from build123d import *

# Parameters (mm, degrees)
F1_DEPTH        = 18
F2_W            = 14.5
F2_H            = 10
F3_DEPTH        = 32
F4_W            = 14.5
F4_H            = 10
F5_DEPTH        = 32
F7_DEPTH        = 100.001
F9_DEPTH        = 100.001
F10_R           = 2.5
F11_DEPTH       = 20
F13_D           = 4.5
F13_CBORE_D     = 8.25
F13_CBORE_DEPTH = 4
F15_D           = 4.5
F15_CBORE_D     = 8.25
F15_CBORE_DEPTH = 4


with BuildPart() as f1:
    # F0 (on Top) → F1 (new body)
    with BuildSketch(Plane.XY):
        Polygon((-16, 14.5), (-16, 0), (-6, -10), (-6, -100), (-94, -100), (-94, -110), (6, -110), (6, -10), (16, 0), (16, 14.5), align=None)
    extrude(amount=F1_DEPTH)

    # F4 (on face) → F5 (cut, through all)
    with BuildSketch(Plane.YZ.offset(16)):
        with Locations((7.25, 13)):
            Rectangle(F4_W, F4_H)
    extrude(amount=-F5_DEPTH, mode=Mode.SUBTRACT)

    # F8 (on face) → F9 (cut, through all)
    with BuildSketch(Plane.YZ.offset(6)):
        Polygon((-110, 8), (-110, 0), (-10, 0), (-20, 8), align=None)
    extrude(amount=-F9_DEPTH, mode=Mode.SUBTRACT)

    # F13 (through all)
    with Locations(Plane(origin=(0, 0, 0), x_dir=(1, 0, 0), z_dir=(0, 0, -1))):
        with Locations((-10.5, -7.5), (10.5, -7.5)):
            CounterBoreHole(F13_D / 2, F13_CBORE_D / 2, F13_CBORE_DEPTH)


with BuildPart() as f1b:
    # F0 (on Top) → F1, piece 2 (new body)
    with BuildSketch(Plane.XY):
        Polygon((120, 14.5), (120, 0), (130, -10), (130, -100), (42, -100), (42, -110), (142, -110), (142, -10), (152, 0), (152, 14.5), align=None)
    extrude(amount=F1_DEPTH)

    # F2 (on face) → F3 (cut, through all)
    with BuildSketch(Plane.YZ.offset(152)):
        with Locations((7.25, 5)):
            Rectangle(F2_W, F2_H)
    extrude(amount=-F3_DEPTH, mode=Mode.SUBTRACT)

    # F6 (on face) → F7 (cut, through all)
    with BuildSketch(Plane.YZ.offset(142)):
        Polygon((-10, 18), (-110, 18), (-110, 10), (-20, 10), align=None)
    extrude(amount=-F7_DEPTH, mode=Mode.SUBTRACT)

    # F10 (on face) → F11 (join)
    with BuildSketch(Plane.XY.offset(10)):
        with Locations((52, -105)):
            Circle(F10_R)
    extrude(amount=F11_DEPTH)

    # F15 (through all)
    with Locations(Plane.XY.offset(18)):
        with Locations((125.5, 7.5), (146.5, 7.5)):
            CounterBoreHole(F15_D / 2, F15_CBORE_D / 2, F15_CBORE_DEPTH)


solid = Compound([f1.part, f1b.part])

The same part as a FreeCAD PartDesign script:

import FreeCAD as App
import Part
import Sketcher
from FreeCAD import Vector
Q = App.Units.Quantity

doc = App.newDocument("Part")
body = doc.addObject("PartDesign::Body", "Body")

sketch1 = doc.addObject("Sketcher::SketchObject", "Sketch")
body.addObject(sketch1)
sketch1.AttachmentSupport = (doc.XY_Plane, [""])
sketch1.MapMode = "FlatFace"
sketch1.addGeometry([
    Part.LineSegment(Vector(-16, 14, 0), Vector(-16, 0, 0)),
    Part.LineSegment(Vector(-16, 0, 0), Vector(-6, -10, 0)),
    Part.LineSegment(Vector(-6, -10, 0), Vector(-6, -100, 0)),
    Part.LineSegment(Vector(-6, -100, 0), Vector(-94, -100, 0)),
    Part.LineSegment(Vector(-94, -100, 0), Vector(-94, -110, 0)),
    Part.LineSegment(Vector(-94, -110, 0), Vector(6, -110, 0)),
    Part.LineSegment(Vector(6, -110, 0), Vector(6, -10, 0)),
    Part.LineSegment(Vector(6, -10, 0), Vector(16, 0, 0)),
    Part.LineSegment(Vector(16, 0, 0), Vector(16, 14, 0)),
    Part.LineSegment(Vector(16, 14, 0), Vector(-16, 14, 0)),
], False)
sketch1.addConstraint([
    Sketcher.Constraint("Coincident", 0, 2, 1, 1),
    Sketcher.Constraint("Coincident", 1, 2, 2, 1),
    Sketcher.Constraint("Coincident", 2, 2, 3, 1),
    Sketcher.Constraint("Coincident", 3, 2, 4, 1),
    Sketcher.Constraint("Coincident", 4, 2, 5, 1),
    Sketcher.Constraint("Coincident", 5, 2, 6, 1),
    Sketcher.Constraint("Coincident", 6, 2, 7, 1),
    Sketcher.Constraint("Coincident", 7, 2, 8, 1),
    Sketcher.Constraint("Coincident", 8, 2, 9, 1),
    Sketcher.Constraint("Coincident", 9, 2, 0, 1),
    Sketcher.Constraint("Vertical", 0),
    Sketcher.Constraint("Vertical", 2),
    Sketcher.Constraint("Horizontal", 3),
    Sketcher.Constraint("Vertical", 4),
    Sketcher.Constraint("Horizontal", 5),
    Sketcher.Constraint("Vertical", 6),
    Sketcher.Constraint("Vertical", 8),
    Sketcher.Constraint("Horizontal", 9),
    Sketcher.Constraint("Symmetric", 0, 2, 7, 2, -1, 1),
    Sketcher.Constraint("Symmetric", 1, 2, 6, 2, -2),
    Sketcher.Constraint("PointOnObject", 0, 2, -1),
    Sketcher.Constraint("Perpendicular", 1, 7),
    Sketcher.Constraint("Equal", 5, 6),
    Sketcher.Constraint("DistanceX", 3, 2, 3, 1, Q("88 mm")),
    Sketcher.Constraint("DistanceX", 5, 1, 5, 2, Q("100 mm")),
    Sketcher.Constraint("DistanceX", 9, 2, 9, 1, Q("32 mm")),
    Sketcher.Constraint("DistanceY", 2, 2, 2, 1, Q("90 mm")),
    Sketcher.Constraint("DistanceY", 0, 2, 0, 1, Q("14.5 mm")),
])
pad1 = doc.addObject("PartDesign::Pad", "Pad")
body.addObject(pad1)
pad1.Profile = sketch1
pad1.Length = 18

sketch2 = doc.addObject("Sketcher::SketchObject", "Sketch001")
body.addObject(sketch2)
sketch2.AttachmentSupport = (doc.YZ_Plane, [""])
sketch2.MapMode = "FlatFace"
sketch2.AttachmentOffset = App.Placement(Vector(0, 0, 16), App.Rotation())
sketch2.addGeometry([
    Part.LineSegment(Vector(0, 18, 0), Vector(0, 8, 0)),
    Part.LineSegment(Vector(0, 8, 0), Vector(14, 8, 0)),
    Part.LineSegment(Vector(14, 8, 0), Vector(14, 18, 0)),
    Part.LineSegment(Vector(14, 18, 0), Vector(0, 18, 0)),
], False)
sketch2.addConstraint([
    Sketcher.Constraint("Coincident", 0, 2, 1, 1),
    Sketcher.Constraint("Coincident", 1, 2, 2, 1),
    Sketcher.Constraint("Coincident", 2, 2, 3, 1),
    Sketcher.Constraint("Coincident", 3, 2, 0, 1),
    Sketcher.Constraint("Vertical", 0),
    Sketcher.Constraint("Horizontal", 1),
    Sketcher.Constraint("Vertical", 2),
    Sketcher.Constraint("Horizontal", 3),
    Sketcher.Constraint("PointOnObject", 0, 2, -2),
    Sketcher.Constraint("DistanceY", 0, 2, 0, 1, Q("10 mm")),
    Sketcher.Constraint("DistanceX", 1, 1, 1, 2, Q("14.5 mm")),
    Sketcher.Constraint("DistanceY", -1, 1, 0, 2, Q("8 mm")),
])
pocket1 = doc.addObject("PartDesign::Pocket", "Pocket")
body.addObject(pocket1)
pocket1.Profile = sketch2
pocket1.Type = "ThroughAll"

sketch3 = doc.addObject("Sketcher::SketchObject", "Sketch002")
body.addObject(sketch3)
sketch3.AttachmentSupport = (doc.YZ_Plane, [""])
sketch3.MapMode = "FlatFace"
sketch3.AttachmentOffset = App.Placement(Vector(0, 0, 6), App.Rotation())
sketch3.addGeometry([
    Part.LineSegment(Vector(-110, 8, 0), Vector(-110, 0, 0)),
    Part.LineSegment(Vector(-110, 0, 0), Vector(-10, 0, 0)),
    Part.LineSegment(Vector(-10, 0, 0), Vector(-20, 8, 0)),
    Part.LineSegment(Vector(-20, 8, 0), Vector(-110, 8, 0)),
], False)
sketch3.addConstraint([
    Sketcher.Constraint("Coincident", 0, 2, 1, 1),
    Sketcher.Constraint("Coincident", 1, 2, 2, 1),
    Sketcher.Constraint("Coincident", 2, 2, 3, 1),
    Sketcher.Constraint("Coincident", 3, 2, 0, 1),
    Sketcher.Constraint("Vertical", 0),
    Sketcher.Constraint("Horizontal", 1),
    Sketcher.Constraint("Horizontal", 3),
    Sketcher.Constraint("PointOnObject", 0, 2, -1),
    Sketcher.Constraint("DistanceX", 1, 1, 1, 2, Q("100 mm")),
    Sketcher.Constraint("DistanceX", 3, 2, 3, 1, Q("90 mm")),
    Sketcher.Constraint("DistanceY", 0, 2, 0, 1, Q("8 mm")),
    Sketcher.Constraint("DistanceX", 0, 2, -1, 1, Q("110 mm")),
])
pocket2 = doc.addObject("PartDesign::Pocket", "Pocket001")
body.addObject(pocket2)
pocket2.Profile = sketch3
pocket2.Type = "ThroughAll"

sketch4 = doc.addObject("Sketcher::SketchObject", "Sketch003")
body.addObject(sketch4)
sketch4.AttachmentSupport = (doc.XY_Plane, [""])
sketch4.MapMode = "FlatFace"
sketch4.addGeometry([
    Part.Circle(Vector(-10.5, 7.5, 0), Vector(0, 0, 1), 2.2),
    Part.Circle(Vector(10.5, 7.5, 0), Vector(0, 0, 1), 2.2),
], False)
sketch4.addConstraint([
    Sketcher.Constraint("Equal", 0, 1),
    Sketcher.Constraint("Symmetric", 0, 3, 1, 3, -2),
    Sketcher.Constraint("Diameter", 0, Q("4.5 mm")),
    Sketcher.Constraint("DistanceX", 0, 3, 1, 3, Q("21 mm")),
    Sketcher.Constraint("DistanceY", -1, 1, 0, 3, Q("7.5 mm")),
])
doc.recompute()
hole = doc.addObject("PartDesign::Hole", "Hole")
body.addObject(hole)
hole.Profile = sketch4
hole.ThreadType = "None"
hole.Diameter = 4.5
hole.DepthType = "ThroughAll"
hole.HoleCutType = "Counterbore"
hole.HoleCutDiameter = 8.25
hole.HoleCutDepth = 4
hole.Reversed = True
body2 = doc.addObject("PartDesign::Body", "Body001")

sketch5 = doc.addObject("Sketcher::SketchObject", "Sketch004")
body2.addObject(sketch5)
sketch5.AttachmentSupport = (doc.getObject("XY_Plane001"), [""])
sketch5.MapMode = "FlatFace"
sketch5.addGeometry([
    Part.LineSegment(Vector(120, 14, 0), Vector(120, 0, 0)),
    Part.LineSegment(Vector(120, 0, 0), Vector(130, -10, 0)),
    Part.LineSegment(Vector(130, -10, 0), Vector(130, -100, 0)),
    Part.LineSegment(Vector(130, -100, 0), Vector(42, -100, 0)),
    Part.LineSegment(Vector(42, -100, 0), Vector(42, -110, 0)),
    Part.LineSegment(Vector(42, -110, 0), Vector(142, -110, 0)),
    Part.LineSegment(Vector(142, -110, 0), Vector(142, -10, 0)),
    Part.LineSegment(Vector(142, -10, 0), Vector(152, 0, 0)),
    Part.LineSegment(Vector(152, 0, 0), Vector(152, 14, 0)),
    Part.LineSegment(Vector(152, 14, 0), Vector(120, 14, 0)),
], False)
sketch5.addConstraint([
    Sketcher.Constraint("Coincident", 0, 2, 1, 1),
    Sketcher.Constraint("Coincident", 1, 2, 2, 1),
    Sketcher.Constraint("Coincident", 2, 2, 3, 1),
    Sketcher.Constraint("Coincident", 3, 2, 4, 1),
    Sketcher.Constraint("Coincident", 4, 2, 5, 1),
    Sketcher.Constraint("Coincident", 5, 2, 6, 1),
    Sketcher.Constraint("Coincident", 6, 2, 7, 1),
    Sketcher.Constraint("Coincident", 7, 2, 8, 1),
    Sketcher.Constraint("Coincident", 8, 2, 9, 1),
    Sketcher.Constraint("Coincident", 9, 2, 0, 1),
    Sketcher.Constraint("Vertical", 0),
    Sketcher.Constraint("Vertical", 2),
    Sketcher.Constraint("Horizontal", 3),
    Sketcher.Constraint("Vertical", 4),
    Sketcher.Constraint("Horizontal", 5),
    Sketcher.Constraint("Vertical", 6),
    Sketcher.Constraint("Vertical", 8),
    Sketcher.Constraint("Horizontal", 9),
    Sketcher.Constraint("PointOnObject", 0, 2, -1),
    Sketcher.Constraint("PointOnObject", 7, 2, -1),
    Sketcher.Constraint("Perpendicular", 1, 7),
    Sketcher.Constraint("Horizontal", 1, 2, 6, 2),
    Sketcher.Constraint("Equal", 5, 6),
    Sketcher.Constraint("Equal", 1, 7),
    Sketcher.Constraint("DistanceX", 3, 2, 3, 1, Q("88 mm")),
    Sketcher.Constraint("DistanceX", 5, 1, 5, 2, Q("100 mm")),
    Sketcher.Constraint("DistanceX", 9, 2, 9, 1, Q("32 mm")),
    Sketcher.Constraint("DistanceY", 2, 2, 2, 1, Q("90 mm")),
    Sketcher.Constraint("DistanceY", 0, 2, 0, 1, Q("14.5 mm")),
    Sketcher.Constraint("DistanceX", -1, 1, 0, 2, Q("120 mm")),
])
pad2 = doc.addObject("PartDesign::Pad", "Pad001")
body2.addObject(pad2)
pad2.Profile = sketch5
pad2.Length = 18

sketch6 = doc.addObject("Sketcher::SketchObject", "Sketch005")
body2.addObject(sketch6)
sketch6.AttachmentSupport = (doc.getObject("YZ_Plane001"), [""])
sketch6.MapMode = "FlatFace"
sketch6.AttachmentOffset = App.Placement(Vector(0, 0, 152), App.Rotation())
sketch6.addGeometry([
    Part.LineSegment(Vector(0, 10, 0), Vector(0, 0, 0)),
    Part.LineSegment(Vector(0, 0, 0), Vector(14, 0, 0)),
    Part.LineSegment(Vector(14, 0, 0), Vector(14, 10, 0)),
    Part.LineSegment(Vector(14, 10, 0), Vector(0, 10, 0)),
], False)
sketch6.addConstraint([
    Sketcher.Constraint("Coincident", 0, 2, 1, 1),
    Sketcher.Constraint("Coincident", 1, 2, 2, 1),
    Sketcher.Constraint("Coincident", 2, 2, 3, 1),
    Sketcher.Constraint("Coincident", 3, 2, 0, 1),
    Sketcher.Constraint("Vertical", 0),
    Sketcher.Constraint("Horizontal", 1),
    Sketcher.Constraint("Vertical", 2),
    Sketcher.Constraint("Horizontal", 3),
    Sketcher.Constraint("Coincident", 0, 2, -1, 1),
    Sketcher.Constraint("DistanceY", 0, 2, 0, 1, Q("10 mm")),
    Sketcher.Constraint("DistanceX", 1, 1, 1, 2, Q("14.5 mm")),
])
pocket3 = doc.addObject("PartDesign::Pocket", "Pocket002")
body2.addObject(pocket3)
pocket3.Profile = sketch6
pocket3.Type = "ThroughAll"

sketch7 = doc.addObject("Sketcher::SketchObject", "Sketch006")
body2.addObject(sketch7)
sketch7.AttachmentSupport = (doc.getObject("YZ_Plane001"), [""])
sketch7.MapMode = "FlatFace"
sketch7.AttachmentOffset = App.Placement(Vector(0, 0, 142), App.Rotation())
sketch7.addGeometry([
    Part.LineSegment(Vector(-10, 18, 0), Vector(-110, 18, 0)),
    Part.LineSegment(Vector(-110, 18, 0), Vector(-110, 10, 0)),
    Part.LineSegment(Vector(-110, 10, 0), Vector(-20, 10, 0)),
    Part.LineSegment(Vector(-20, 10, 0), Vector(-10, 18, 0)),
], False)
sketch7.addConstraint([
    Sketcher.Constraint("Coincident", 0, 2, 1, 1),
    Sketcher.Constraint("Coincident", 1, 2, 2, 1),
    Sketcher.Constraint("Coincident", 2, 2, 3, 1),
    Sketcher.Constraint("Coincident", 3, 2, 0, 1),
    Sketcher.Constraint("Horizontal", 0),
    Sketcher.Constraint("Vertical", 1),
    Sketcher.Constraint("Horizontal", 2),
    Sketcher.Constraint("DistanceX", 0, 2, 0, 1, Q("100 mm")),
    Sketcher.Constraint("DistanceX", 2, 1, 2, 2, Q("90 mm")),
    Sketcher.Constraint("DistanceY", 1, 2, 1, 1, Q("8 mm")),
    Sketcher.Constraint("DistanceX", 0, 2, -1, 1, Q("110 mm")),
    Sketcher.Constraint("DistanceY", -1, 1, 0, 2, Q("18 mm")),
])
pocket4 = doc.addObject("PartDesign::Pocket", "Pocket003")
body2.addObject(pocket4)
pocket4.Profile = sketch7
pocket4.Type = "ThroughAll"

sketch8 = doc.addObject("Sketcher::SketchObject", "Sketch007")
body2.addObject(sketch8)
sketch8.AttachmentSupport = (doc.getObject("XY_Plane001"), [""])
sketch8.MapMode = "FlatFace"
sketch8.AttachmentOffset = App.Placement(Vector(0, 0, 10), App.Rotation())
sketch8.addGeometry(Part.Circle(Vector(52, -105, 0), Vector(0, 0, 1), 2.5), False)
sketch8.addConstraint([
    Sketcher.Constraint("Diameter", 0, Q("5 mm")),
    Sketcher.Constraint("DistanceX", -1, 1, 0, 3, Q("52 mm")),
    Sketcher.Constraint("DistanceY", 0, 3, -1, 1, Q("105 mm")),
])
pad3 = doc.addObject("PartDesign::Pad", "Pad002")
body2.addObject(pad3)
pad3.Profile = sketch8
pad3.Length = 20

sketch9 = doc.addObject("Sketcher::SketchObject", "Sketch008")
body2.addObject(sketch9)
sketch9.AttachmentSupport = (doc.getObject("XY_Plane001"), [""])
sketch9.MapMode = "FlatFace"
sketch9.AttachmentOffset = App.Placement(Vector(0, 0, 18), App.Rotation())
sketch9.addGeometry([
    Part.Circle(Vector(125.5, 7.5, 0), Vector(0, 0, 1), 2.2),
    Part.Circle(Vector(146.5, 7.5, 0), Vector(0, 0, 1), 2.2),
], False)
sketch9.addConstraint([
    Sketcher.Constraint("Equal", 0, 1),
    Sketcher.Constraint("Horizontal", 0, 3, 1, 3),
    Sketcher.Constraint("Diameter", 0, Q("4.5 mm")),
    Sketcher.Constraint("DistanceX", 0, 3, 1, 3, Q("21 mm")),
    Sketcher.Constraint("DistanceX", -1, 1, 0, 3, Q("125.5 mm")),
    Sketcher.Constraint("DistanceY", -1, 1, 0, 3, Q("7.5 mm")),
])
doc.recompute()
hole2 = doc.addObject("PartDesign::Hole", "Hole001")
body2.addObject(hole2)
hole2.Profile = sketch9
hole2.ThreadType = "None"
hole2.Diameter = 4.5
hole2.DepthType = "ThroughAll"
hole2.HoleCutType = "Counterbore"
hole2.HoleCutDiameter = 8.25
hole2.HoleCutDepth = 4

doc.recompute()
